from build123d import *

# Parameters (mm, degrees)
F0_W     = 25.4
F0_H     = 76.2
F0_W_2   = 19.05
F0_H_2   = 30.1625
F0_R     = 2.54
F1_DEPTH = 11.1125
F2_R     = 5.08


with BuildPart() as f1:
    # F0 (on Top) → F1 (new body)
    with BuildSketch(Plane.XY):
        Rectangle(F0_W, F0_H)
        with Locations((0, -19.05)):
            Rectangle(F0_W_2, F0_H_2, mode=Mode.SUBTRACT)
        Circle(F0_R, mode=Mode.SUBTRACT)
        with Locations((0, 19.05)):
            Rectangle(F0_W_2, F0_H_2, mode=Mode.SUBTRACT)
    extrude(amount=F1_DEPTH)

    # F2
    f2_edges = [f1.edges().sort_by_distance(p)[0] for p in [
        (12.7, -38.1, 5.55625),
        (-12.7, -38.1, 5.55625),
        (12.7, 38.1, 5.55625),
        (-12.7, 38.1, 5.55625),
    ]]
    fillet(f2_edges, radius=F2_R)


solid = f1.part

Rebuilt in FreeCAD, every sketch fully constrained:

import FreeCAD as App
import Part
import Sketcher
from FreeCAD import Vector
Q = App.Units.Quantity


def edges_at(feature, points):
    """Names of the edges that pass closest to the given points."""
    edges = feature.Shape.Edges
    near = lambda p: min(range(len(edges)), key=lambda i: edges[i].distToShape(Part.Vertex(*p))[0])
    return sorted({f"Edge{near(p) + 1}" for p in points})


def add_polygon(sketch, points):
    """Adds a closed chain of lines whose ends are joined by coincident constraints."""
    first, n = sketch.GeometryCount, len(points)
    for a, b in zip(points, points[1:] + points[:1]):
        sketch.addGeometry(Part.LineSegment(App.Vector(*a, 0), App.Vector(*b, 0)), False)
    for i in range(n):
        sketch.addConstraint(Sketcher.Constraint("Coincident", first + i, 2, first + (i + 1) % n, 1))

doc = App.newDocument("Part")
params = doc.addObject("Spreadsheet::Sheet", "Params")
for row, (alias, value) in enumerate([
    ("sketch1_diameter", "0.2 in"),
    ("sketch1_width", "1 in"),
    ("sketch1_height", "3 in"),
    ("sketch1_width2", "0.75 in"),
    ("sketch1_height2", "1.1875 in"),
    ("pad1_length", "0.4375 in"),
    ("fillet_radius", "0.2 in"),
], start=1):
    params.set(f"A{row}", alias)
    params.set(f"B{row}", "=" + value)
    params.setAlias(f"B{row}", alias)

body = doc.addObject("PartDesign::Body", "Body")

# Sketch on XY plane
sketch1 = body.newObject("Sketcher::SketchObject", "Sketch")
sketch1.AttachmentSupport = (doc.getObject("XY_Plane"), [""])
sketch1.MapMode = "FlatFace"
add_polygon(sketch1, [(-12.7, 38.1), (-12.7, -38.1), (12.7, -38.1), (12.7, 38.1)])  # lines 0-3
add_polygon(sketch1, [(9.5, -34.1), (-9.5, -34.1), (-9.5, -4), (9.5, -4)])  # lines 4-7
sketch1.addGeometry(Part.Circle(Vector(0, 0, 0), Vector(0, 0, 1), 2.5), False)  # 8
add_polygon(sketch1, [(9.5, 4), (-9.5, 4), (-9.5, 34.1), (9.5, 34.1)])  # lines 9-12
sketch1.addConstraint(Sketcher.Constraint("Vertical", 0))
sketch1.addConstraint(Sketcher.Constraint("Horizontal", 1))
sketch1.addConstraint(Sketcher.Constraint("Vertical", 2))
sketch1.addConstraint(Sketcher.Constraint("Horizontal", 3))
sketch1.addConstraint(Sketcher.Constraint("Horizontal", 4))
sketch1.addConstraint(Sketcher.Constraint("Vertical", 5))
sketch1.addConstraint(Sketcher.Constraint("Horizontal", 6))
sketch1.addConstraint(Sketcher.Constraint("Vertical", 7))
sketch1.addConstraint(Sketcher.Constraint("Horizontal", 9))
sketch1.addConstraint(Sketcher.Constraint("Vertical", 10))
sketch1.addConstraint(Sketcher.Constraint("Horizontal", 11))
sketch1.addConstraint(Sketcher.Constraint("Vertical", 12))
sketch1.addConstraint(Sketcher.Constraint("Coincident", 8, 3, -1, 1))
sketch1.addConstraint(Sketcher.Constraint("Symmetric", 0, 2, 2, 2, -1, 1))
sketch1.addConstraint(Sketcher.Constraint("Symmetric", 6, 2, 9, 2, -1, 1))
sketch1.addConstraint(Sketcher.Constraint("Symmetric", 4, 2, 11, 2, -1, 1))
sketch1.addConstraint(Sketcher.Constraint("Vertical", 5, 2, 9, 2))
sketch1.addConstraint(Sketcher.Constraint("Diameter", 8, Q("0.2 in")))
sketch1.addConstraint(Sketcher.Constraint("DistanceX", 1, 1, 1, 2, Q("1 in")))
sketch1.addConstraint(Sketcher.Constraint("DistanceY", 0, 2, 0, 1, Q("3 in")))
sketch1.addConstraint(Sketcher.Constraint("DistanceX", 4, 2, 4, 1, Q("0.75 in")))
sketch1.addConstraint(Sketcher.Constraint("DistanceY", 4, 2, 9, 2, Q("1.5 in")))
sketch1.addConstraint(Sketcher.Constraint("DistanceY", 5, 1, 5, 2, Q("1.1875 in")))
sketch1.setExpression("Constraints[29]", "Params.sketch1_diameter")
sketch1.setExpression("Constraints[30]", "Params.sketch1_width")
sketch1.setExpression("Constraints[31]", "Params.sketch1_height")
sketch1.setExpression("Constraints[32]", "Params.sketch1_width2")
sketch1.setExpression("Constraints[34]", "Params.sketch1_height2")
pad1 = body.newObject("PartDesign::Pad", "Pad")
pad1.Profile = sketch1
pad1.setExpression("Length", "Params.pad1_length")
doc.recompute()

fillet = body.newObject("PartDesign::Fillet", "Fillet")
fillet.Base = (pad1, edges_at(pad1, [
    (12.7, -38.1, 5.556),
    (-12.7, -38.1, 5.556),
    (12.7, 38.1, 5.556),
    (-12.7, 38.1, 5.556),
]))
fillet.setExpression("Radius", "Params.fillet_radius")

doc.recompute()
